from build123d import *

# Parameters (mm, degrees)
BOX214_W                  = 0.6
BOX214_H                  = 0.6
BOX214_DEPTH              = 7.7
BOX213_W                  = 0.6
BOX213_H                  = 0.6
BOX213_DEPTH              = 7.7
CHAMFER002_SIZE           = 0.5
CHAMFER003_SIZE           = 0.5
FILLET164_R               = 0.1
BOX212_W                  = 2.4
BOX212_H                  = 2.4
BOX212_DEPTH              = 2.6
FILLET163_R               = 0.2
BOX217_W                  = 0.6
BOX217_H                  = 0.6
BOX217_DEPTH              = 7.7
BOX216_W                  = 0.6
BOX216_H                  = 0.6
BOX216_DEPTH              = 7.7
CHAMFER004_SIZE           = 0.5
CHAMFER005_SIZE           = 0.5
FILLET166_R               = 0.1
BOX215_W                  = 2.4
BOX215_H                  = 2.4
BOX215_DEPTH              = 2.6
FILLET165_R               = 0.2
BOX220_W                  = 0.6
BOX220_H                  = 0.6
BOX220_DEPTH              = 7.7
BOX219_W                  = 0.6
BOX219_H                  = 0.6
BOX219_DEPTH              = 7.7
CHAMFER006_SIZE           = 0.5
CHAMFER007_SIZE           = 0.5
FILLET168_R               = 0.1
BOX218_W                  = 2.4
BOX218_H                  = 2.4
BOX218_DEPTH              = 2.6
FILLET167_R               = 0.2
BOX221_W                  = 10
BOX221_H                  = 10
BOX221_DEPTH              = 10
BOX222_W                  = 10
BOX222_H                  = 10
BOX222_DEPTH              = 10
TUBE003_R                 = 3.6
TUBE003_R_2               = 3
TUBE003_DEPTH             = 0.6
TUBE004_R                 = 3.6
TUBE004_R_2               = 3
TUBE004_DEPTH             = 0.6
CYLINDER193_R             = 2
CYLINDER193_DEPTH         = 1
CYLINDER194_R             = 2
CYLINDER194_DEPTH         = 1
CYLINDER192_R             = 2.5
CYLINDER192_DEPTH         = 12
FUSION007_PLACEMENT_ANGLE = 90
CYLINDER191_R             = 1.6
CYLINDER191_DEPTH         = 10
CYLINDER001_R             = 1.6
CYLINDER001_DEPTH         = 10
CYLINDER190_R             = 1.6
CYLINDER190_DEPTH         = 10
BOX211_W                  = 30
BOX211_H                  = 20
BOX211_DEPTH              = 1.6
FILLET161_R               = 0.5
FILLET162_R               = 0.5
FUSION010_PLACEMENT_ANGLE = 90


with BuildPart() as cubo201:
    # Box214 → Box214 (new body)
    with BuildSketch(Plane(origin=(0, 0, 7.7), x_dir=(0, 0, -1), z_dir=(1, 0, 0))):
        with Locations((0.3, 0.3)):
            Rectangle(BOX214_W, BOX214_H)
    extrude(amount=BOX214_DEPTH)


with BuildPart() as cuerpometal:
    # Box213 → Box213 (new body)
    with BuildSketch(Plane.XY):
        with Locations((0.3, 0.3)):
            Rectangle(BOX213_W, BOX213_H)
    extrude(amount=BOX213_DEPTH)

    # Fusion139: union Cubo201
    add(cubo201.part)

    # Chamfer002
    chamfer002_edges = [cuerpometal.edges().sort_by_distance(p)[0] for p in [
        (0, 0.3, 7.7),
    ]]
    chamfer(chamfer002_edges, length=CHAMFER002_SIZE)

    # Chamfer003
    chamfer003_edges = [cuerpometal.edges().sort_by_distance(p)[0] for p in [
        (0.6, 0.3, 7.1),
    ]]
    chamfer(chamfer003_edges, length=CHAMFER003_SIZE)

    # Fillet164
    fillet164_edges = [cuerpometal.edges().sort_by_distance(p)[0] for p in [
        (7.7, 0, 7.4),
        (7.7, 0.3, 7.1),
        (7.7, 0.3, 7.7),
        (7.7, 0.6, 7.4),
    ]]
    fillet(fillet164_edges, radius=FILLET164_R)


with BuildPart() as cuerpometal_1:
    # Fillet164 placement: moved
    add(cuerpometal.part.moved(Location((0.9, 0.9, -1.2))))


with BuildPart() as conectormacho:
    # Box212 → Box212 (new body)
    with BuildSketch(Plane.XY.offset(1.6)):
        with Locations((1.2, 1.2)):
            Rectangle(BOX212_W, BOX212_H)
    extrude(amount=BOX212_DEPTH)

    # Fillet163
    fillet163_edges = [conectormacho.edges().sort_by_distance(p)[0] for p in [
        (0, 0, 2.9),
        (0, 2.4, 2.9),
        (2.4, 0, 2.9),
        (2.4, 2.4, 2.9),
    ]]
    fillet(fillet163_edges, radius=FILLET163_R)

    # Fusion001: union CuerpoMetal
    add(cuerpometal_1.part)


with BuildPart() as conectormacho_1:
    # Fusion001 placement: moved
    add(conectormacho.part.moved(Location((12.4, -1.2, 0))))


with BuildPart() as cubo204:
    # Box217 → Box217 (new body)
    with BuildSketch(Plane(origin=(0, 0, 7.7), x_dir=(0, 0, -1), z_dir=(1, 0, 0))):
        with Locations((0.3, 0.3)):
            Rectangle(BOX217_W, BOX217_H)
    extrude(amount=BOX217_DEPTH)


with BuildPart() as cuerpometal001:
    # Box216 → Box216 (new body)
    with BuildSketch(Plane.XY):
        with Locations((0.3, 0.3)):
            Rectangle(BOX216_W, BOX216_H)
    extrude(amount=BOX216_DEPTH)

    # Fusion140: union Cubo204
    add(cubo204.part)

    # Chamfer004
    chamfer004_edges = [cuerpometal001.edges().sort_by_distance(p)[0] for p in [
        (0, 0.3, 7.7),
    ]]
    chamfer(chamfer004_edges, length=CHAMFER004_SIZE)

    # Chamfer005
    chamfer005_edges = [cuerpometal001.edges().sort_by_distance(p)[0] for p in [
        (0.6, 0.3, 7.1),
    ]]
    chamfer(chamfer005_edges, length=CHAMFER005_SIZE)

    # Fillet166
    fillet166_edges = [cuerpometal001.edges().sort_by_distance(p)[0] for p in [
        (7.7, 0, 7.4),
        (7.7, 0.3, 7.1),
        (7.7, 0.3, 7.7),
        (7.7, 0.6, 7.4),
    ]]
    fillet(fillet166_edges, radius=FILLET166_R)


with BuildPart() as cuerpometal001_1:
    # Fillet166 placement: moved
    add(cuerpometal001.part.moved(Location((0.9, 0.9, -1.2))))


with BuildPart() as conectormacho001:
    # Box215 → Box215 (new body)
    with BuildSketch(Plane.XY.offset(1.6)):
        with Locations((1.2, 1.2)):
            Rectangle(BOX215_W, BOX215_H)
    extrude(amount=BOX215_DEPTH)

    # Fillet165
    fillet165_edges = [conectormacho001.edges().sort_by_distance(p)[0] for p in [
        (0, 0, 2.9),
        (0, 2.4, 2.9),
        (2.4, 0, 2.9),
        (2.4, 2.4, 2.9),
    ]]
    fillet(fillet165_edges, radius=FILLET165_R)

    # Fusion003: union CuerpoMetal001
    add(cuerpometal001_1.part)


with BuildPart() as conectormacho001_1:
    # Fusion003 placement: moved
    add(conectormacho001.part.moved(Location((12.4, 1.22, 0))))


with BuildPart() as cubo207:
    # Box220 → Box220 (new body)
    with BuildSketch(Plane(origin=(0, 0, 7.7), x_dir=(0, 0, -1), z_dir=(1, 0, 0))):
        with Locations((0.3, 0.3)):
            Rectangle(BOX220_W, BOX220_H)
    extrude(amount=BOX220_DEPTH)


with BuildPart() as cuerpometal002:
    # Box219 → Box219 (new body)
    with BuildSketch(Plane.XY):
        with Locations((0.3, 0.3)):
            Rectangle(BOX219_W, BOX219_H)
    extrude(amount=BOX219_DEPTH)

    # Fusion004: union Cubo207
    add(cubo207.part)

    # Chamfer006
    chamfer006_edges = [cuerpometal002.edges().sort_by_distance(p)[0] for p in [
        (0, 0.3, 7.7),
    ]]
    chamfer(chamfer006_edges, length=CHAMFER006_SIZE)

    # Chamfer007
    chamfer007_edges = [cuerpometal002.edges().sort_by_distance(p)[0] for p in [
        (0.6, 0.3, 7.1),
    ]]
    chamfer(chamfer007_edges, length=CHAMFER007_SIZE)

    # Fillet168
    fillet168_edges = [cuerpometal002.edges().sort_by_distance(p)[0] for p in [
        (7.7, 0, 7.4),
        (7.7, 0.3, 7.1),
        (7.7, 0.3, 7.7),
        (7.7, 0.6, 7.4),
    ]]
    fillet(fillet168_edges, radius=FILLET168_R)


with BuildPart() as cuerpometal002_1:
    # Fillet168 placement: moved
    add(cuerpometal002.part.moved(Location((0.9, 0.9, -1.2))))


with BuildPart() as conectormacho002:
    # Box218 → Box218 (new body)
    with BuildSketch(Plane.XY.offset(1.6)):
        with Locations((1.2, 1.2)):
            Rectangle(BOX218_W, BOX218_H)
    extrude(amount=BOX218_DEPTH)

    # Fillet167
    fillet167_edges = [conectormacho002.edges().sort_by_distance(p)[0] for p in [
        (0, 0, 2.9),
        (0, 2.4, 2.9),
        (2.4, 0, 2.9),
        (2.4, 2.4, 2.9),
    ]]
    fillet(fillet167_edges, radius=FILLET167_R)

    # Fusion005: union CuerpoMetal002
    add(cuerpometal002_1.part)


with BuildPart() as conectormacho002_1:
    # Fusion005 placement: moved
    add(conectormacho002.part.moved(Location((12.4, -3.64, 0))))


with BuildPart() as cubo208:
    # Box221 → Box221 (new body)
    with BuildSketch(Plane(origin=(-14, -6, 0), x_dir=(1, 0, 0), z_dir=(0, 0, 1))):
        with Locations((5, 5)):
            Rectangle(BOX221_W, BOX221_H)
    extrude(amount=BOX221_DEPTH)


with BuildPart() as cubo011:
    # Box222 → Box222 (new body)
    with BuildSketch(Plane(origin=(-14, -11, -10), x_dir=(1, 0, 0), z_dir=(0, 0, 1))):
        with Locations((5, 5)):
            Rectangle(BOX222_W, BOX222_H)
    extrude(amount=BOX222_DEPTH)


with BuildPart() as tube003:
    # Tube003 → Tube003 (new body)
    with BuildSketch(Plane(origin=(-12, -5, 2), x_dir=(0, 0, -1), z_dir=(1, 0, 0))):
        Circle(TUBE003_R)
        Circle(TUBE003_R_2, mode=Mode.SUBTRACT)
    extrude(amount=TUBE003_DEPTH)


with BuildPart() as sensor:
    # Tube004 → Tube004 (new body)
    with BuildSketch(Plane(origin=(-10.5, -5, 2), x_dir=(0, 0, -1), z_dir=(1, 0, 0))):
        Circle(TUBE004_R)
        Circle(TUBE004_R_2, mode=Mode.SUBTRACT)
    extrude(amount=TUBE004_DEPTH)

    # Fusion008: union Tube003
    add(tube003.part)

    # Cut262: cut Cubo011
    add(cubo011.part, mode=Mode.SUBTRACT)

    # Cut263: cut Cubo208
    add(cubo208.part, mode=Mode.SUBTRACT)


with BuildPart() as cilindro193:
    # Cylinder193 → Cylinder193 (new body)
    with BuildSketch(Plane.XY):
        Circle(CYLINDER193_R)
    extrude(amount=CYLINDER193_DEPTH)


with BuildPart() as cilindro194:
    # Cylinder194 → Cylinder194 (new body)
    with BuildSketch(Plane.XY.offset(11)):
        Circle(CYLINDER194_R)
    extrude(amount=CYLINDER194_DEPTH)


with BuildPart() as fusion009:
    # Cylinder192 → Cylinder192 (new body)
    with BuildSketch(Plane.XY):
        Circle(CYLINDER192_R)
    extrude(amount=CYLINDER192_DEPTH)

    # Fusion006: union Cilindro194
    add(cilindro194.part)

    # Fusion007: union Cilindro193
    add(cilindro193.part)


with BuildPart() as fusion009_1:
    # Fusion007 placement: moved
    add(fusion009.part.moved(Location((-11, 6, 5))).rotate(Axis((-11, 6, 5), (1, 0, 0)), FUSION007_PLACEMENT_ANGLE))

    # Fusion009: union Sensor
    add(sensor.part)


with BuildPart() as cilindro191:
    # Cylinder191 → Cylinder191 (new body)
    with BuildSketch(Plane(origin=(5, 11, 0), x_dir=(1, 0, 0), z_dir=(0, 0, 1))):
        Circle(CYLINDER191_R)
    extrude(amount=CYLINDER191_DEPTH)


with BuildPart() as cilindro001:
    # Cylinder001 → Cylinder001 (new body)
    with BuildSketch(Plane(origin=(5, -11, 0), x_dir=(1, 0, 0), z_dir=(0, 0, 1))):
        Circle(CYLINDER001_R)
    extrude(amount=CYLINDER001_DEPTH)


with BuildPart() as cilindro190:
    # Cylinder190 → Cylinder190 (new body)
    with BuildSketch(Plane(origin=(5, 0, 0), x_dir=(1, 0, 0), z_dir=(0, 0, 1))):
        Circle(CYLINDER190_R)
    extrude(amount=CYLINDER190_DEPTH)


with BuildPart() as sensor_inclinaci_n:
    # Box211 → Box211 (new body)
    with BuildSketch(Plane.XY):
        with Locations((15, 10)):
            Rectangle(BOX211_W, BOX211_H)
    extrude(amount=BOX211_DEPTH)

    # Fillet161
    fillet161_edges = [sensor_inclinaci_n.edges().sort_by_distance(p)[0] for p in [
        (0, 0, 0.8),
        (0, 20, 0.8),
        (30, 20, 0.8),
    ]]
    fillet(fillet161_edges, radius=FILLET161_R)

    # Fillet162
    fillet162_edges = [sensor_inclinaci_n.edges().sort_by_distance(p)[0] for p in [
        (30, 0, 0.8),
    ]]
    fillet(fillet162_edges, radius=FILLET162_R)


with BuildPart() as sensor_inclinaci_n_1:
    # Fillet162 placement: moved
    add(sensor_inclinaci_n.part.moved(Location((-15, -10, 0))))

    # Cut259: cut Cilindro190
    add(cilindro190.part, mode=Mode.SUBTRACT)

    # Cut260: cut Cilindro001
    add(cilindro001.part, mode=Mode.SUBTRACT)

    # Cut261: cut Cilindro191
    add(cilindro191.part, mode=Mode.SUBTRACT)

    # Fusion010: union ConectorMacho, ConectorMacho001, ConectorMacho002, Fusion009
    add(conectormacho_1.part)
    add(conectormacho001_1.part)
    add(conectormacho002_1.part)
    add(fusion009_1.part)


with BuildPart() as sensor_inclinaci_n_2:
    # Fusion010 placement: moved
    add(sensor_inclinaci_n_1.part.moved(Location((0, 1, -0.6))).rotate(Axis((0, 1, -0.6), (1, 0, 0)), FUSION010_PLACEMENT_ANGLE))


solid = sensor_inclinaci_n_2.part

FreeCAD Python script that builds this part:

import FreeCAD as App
import Part
import Sketcher

V = App.Vector


def edges_at(feature, points):
    """Names of the edges that pass closest to the given points."""
    edges = feature.Shape.Edges
    near = lambda p: min(range(len(edges)), key=lambda i: edges[i].distToShape(Part.Vertex(*p))[0])
    return sorted({f"Edge{near(p) + 1}" for p in points})

doc = App.newDocument("Part")
body = doc.addObject("PartDesign::Body", "Body")

# Sketch on YZ plane
sketch1 = body.newObject("Sketcher::SketchObject", "Sketch")
sketch1.AttachmentSupport = (doc.getObject("YZ_Plane"), [""])
sketch1.MapMode = "FlatFace"
sketch1.addGeometry(Part.LineSegment(V(0.6, 7.7, 0), V(0, 7.7, 0)), False)
sketch1.addGeometry(Part.LineSegment(V(0, 7.7, 0), V(0, 7.1, 0)), False)
sketch1.addGeometry(Part.LineSegment(V(0, 7.1, 0), V(0.6, 7.1, 0)), False)
sketch1.addGeometry(Part.LineSegment(V(0.6, 7.1, 0), V(0.6, 7.7, 0)), False)
sketch1.addConstraint(Sketcher.Constraint("Coincident", 0, 2, 1, 1))
sketch1.addConstraint(Sketcher.Constraint("Coincident", 1, 2, 2, 1))
sketch1.addConstraint(Sketcher.Constraint("Coincident", 2, 2, 3, 1))
sketch1.addConstraint(Sketcher.Constraint("Coincident", 3, 2, 0, 1))
sketch1.addConstraint(Sketcher.Constraint("Horizontal", 0))
sketch1.addConstraint(Sketcher.Constraint("Vertical", 1))
sketch1.addConstraint(Sketcher.Constraint("Horizontal", 2))
sketch1.addConstraint(Sketcher.Constraint("Vertical", 3))
sketch1.addConstraint(Sketcher.Constraint("PointOnObject", 0, 2, -2))
sketch1.addConstraint(Sketcher.Constraint("Equal", 2, 1))
sketch1.addConstraint(Sketcher.Constraint("DistanceX", 0, 2, 0, 1, 0.6))
sketch1.addConstraint(Sketcher.Constraint("DistanceY", -1, 1, 0, 2, 7.7))
pad1 = body.newObject("PartDesign::Pad", "Pad")
pad1.Profile = sketch1
pad1.Length = 7.7
body2 = doc.addObject("PartDesign::Body", "Body001")

# Sketch on XY plane
sketch2 = body2.newObject("Sketcher::SketchObject", "Sketch001")
sketch2.AttachmentSupport = (doc.getObject("XY_Plane001"), [""])
sketch2.MapMode = "FlatFace"
sketch2.addGeometry(Part.LineSegment(V(0, 0.6, 0), V(0, 0, 0)), False)
sketch2.addGeometry(Part.LineSegment(V(0, 0, 0), V(0.6, 0, 0)), False)
sketch2.addGeometry(Part.LineSegment(V(0.6, 0, 0), V(0.6, 0.6, 0)), False)
sketch2.addGeometry(Part.LineSegment(V(0.6, 0.6, 0), V(0, 0.6, 0)), False)
sketch2.addConstraint(Sketcher.Constraint("Coincident", 0, 2, 1, 1))
sketch2.addConstraint(Sketcher.Constraint("Coincident", 1, 2, 2, 1))
sketch2.addConstraint(Sketcher.Constraint("Coincident", 2, 2, 3, 1))
sketch2.addConstraint(Sketcher.Constraint("Coincident", 3, 2, 0, 1))
sketch2.addConstraint(Sketcher.Constraint("Vertical", 0))
sketch2.addConstraint(Sketcher.Constraint("Horizontal", 1))
sketch2.addConstraint(Sketcher.Constraint("Vertical", 2))
sketch2.addConstraint(Sketcher.Constraint("Horizontal", 3))
sketch2.addConstraint(Sketcher.Constraint("Coincident", 0, 2, -1, 1))
sketch2.addConstraint(Sketcher.Constraint("Equal", 3, 0))
sketch2.addConstraint(Sketcher.Constraint("DistanceX", 1, 1, 1, 2, 0.6))
pad2 = body2.newObject("PartDesign::Pad", "Pad001")
pad2.Profile = sketch2
pad2.Length = 7.7
doc.recompute()

boolean = body2.newObject("PartDesign::Boolean", "Boolean")
boolean.Type = "Fuse"
boolean.addObjects([body])
doc.recompute()

chamfer = body2.newObject("PartDesign::Chamfer", "Chamfer")
chamfer.Base = (boolean, edges_at(boolean, [(0, 0.3, 7.7)]))
chamfer.Size = 0.5
doc.recompute()

chamfer2 = body2.newObject("PartDesign::Chamfer", "Chamfer001")
chamfer2.Base = (chamfer, edges_at(chamfer, [(0.6, 0.3, 7.1)]))
chamfer2.Size = 0.5
doc.recompute()

fillet = body2.newObject("PartDesign::Fillet", "Fillet")
fillet.Base = (chamfer2, edges_at(chamfer2, [
    (7.7, 0, 7.4),
    (7.7, 0.3, 7.1),
    (7.7, 0.3, 7.7),
    (7.7, 0.6, 7.4),
]))
fillet.Radius = 0.1
body3 = doc.addObject("PartDesign::Body", "Body002")
doc.recompute()

body2.Placement = App.Placement(V(0.9, 0.9, -1.2), App.Rotation(V(0, 0, 1), 0))
boolean2 = body3.newObject("PartDesign::Boolean", "Boolean001")
boolean2.Type = "Fuse"
boolean2.addObjects([body2])
body4 = doc.addObject("PartDesign::Body", "Body003")

# Sketch on XY plane
sketch3 = body4.newObject("Sketcher::SketchObject", "Sketch002")
sketch3.AttachmentSupport = (doc.getObject("XY_Plane003"), [""])
sketch3.MapMode = "FlatFace"
sketch3.AttachmentOffset = App.Placement(V(0, 0, 1.6), App.Rotation())
sketch3.addGeometry(Part.LineSegment(V(0, 2.4, 0), V(0, 0, 0)), False)
sketch3.addGeometry(Part.LineSegment(V(0, 0, 0), V(2.4, 0, 0)), False)
sketch3.addGeometry(Part.LineSegment(V(2.4, 0, 0), V(2.4, 2.4, 0)), False)
sketch3.addGeometry(Part.LineSegment(V(2.4, 2.4, 0), V(0, 2.4, 0)), False)
sketch3.addConstraint(Sketcher.Constraint("Coincident", 0, 2, 1, 1))
sketch3.addConstraint(Sketcher.Constraint("Coincident", 1, 2, 2, 1))
sketch3.addConstraint(Sketcher.Constraint("Coincident", 2, 2, 3, 1))
sketch3.addConstraint(Sketcher.Constraint("Coincident", 3, 2, 0, 1))
sketch3.addConstraint(Sketcher.Constraint("Vertical", 0))
sketch3.addConstraint(Sketcher.Constraint("Horizontal", 1))
sketch3.addConstraint(Sketcher.Constraint("Vertical", 2))
sketch3.addConstraint(Sketcher.Constraint("Horizontal", 3))
sketch3.addConstraint(Sketcher.Constraint("Coincident", 0, 2, -1, 1))
sketch3.addConstraint(Sketcher.Constraint("Equal", 3, 0))
sketch3.addConstraint(Sketcher.Constraint("DistanceX", 1, 1, 1, 2, 2.4))
pad3 = body4.newObject("PartDesign::Pad", "Pad002")
pad3.Profile = sketch3
pad3.Length = 2.6
doc.recompute()

fillet2 = body4.newObject("PartDesign::Fillet", "Fillet001")
fillet2.Base = (pad3, edges_at(pad3, [
    (0, 0, 2.9),
    (0, 2.4, 2.9),
    (2.4, 0, 2.9),
    (2.4, 2.4, 2.9),
]))
fillet2.Radius = 0.2
doc.recompute()

boolean3 = body4.newObject("PartDesign::Boolean", "Boolean002")
boolean3.Type = "Fuse"
boolean3.addObjects([body3])
body5 = doc.addObject("PartDesign::Body", "Body004")
doc.recompute()

body4.Placement = App.Placement(V(12.4, -1.2, 0), App.Rotation(V(0, 0, 1), 0))
boolean4 = body5.newObject("PartDesign::Boolean", "Boolean003")
boolean4.Type = "Fuse"
boolean4.addObjects([body4])
body6 = doc.addObject("PartDesign::Body", "Body005")

# Sketch on YZ plane
sketch4 = body6.newObject("Sketcher::SketchObject", "Sketch003")
sketch4.AttachmentSupport = (doc.getObject("YZ_Plane005"), [""])
sketch4.MapMode = "FlatFace"
sketch4.addGeometry(Part.LineSegment(V(0.6, 7.7, 0), V(0, 7.7, 0)), False)
sketch4.addGeometry(Part.LineSegment(V(0, 7.7, 0), V(0, 7.1, 0)), False)
sketch4.addGeometry(Part.LineSegment(V(0, 7.1, 0), V(0.6, 7.1, 0)), False)
sketch4.addGeometry(Part.LineSegment(V(0.6, 7.1, 0), V(0.6, 7.7, 0)), False)
sketch4.addConstraint(Sketcher.Constraint("Coincident", 0, 2, 1, 1))
sketch4.addConstraint(Sketcher.Constraint("Coincident", 1, 2, 2, 1))
sketch4.addConstraint(Sketcher.Constraint("Coincident", 2, 2, 3, 1))
sketch4.addConstraint(Sketcher.Constraint("Coincident", 3, 2, 0, 1))
sketch4.addConstraint(Sketcher.Constraint("Horizontal", 0))
sketch4.addConstraint(Sketcher.Constraint("Vertical", 1))
sketch4.addConstraint(Sketcher.Constraint("Horizontal", 2))
sketch4.addConstraint(Sketcher.Constraint("Vertical", 3))
sketch4.addConstraint(Sketcher.Constraint("PointOnObject", 0, 2, -2))
sketch4.addConstraint(Sketcher.Constraint("Equal", 2, 1))
sketch4.addConstraint(Sketcher.Constraint("DistanceX", 0, 2, 0, 1, 0.6))
sketch4.addConstraint(Sketcher.Constraint("DistanceY", -1, 1, 0, 2, 7.7))
pad4 = body6.newObject("PartDesign::Pad", "Pad003")
pad4.Profile = sketch4
pad4.Length = 7.7
body7 = doc.addObject("PartDesign::Body", "Body006")

# Sketch on XY plane
sketch5 = body7.newObject("Sketcher::SketchObject", "Sketch004")
sketch5.AttachmentSupport = (doc.getObject("XY_Plane006"), [""])
sketch5.MapMode = "FlatFace"
sketch5.addGeometry(Part.LineSegment(V(0, 0.6, 0), V(0, 0, 0)), False)
sketch5.addGeometry(Part.LineSegment(V(0, 0, 0), V(0.6, 0, 0)), False)
sketch5.addGeometry(Part.LineSegment(V(0.6, 0, 0), V(0.6, 0.6, 0)), False)
sketch5.addGeometry(Part.LineSegment(V(0.6, 0.6, 0), V(0, 0.6, 0)), False)
sketch5.addConstraint(Sketcher.Constraint("Coincident", 0, 2, 1, 1))
sketch5.addConstraint(Sketcher.Constraint("Coincident", 1, 2, 2, 1))
sketch5.addConstraint(Sketcher.Constraint("Coincident", 2, 2, 3, 1))
sketch5.addConstraint(Sketcher.Constraint("Coincident", 3, 2, 0, 1))
sketch5.addConstraint(Sketcher.Constraint("Vertical", 0))
sketch5.addConstraint(Sketcher.Constraint("Horizontal", 1))
sketch5.addConstraint(Sketcher.Constraint("Vertical", 2))
sketch5.addConstraint(Sketcher.Constraint("Horizontal", 3))
sketch5.addConstraint(Sketcher.Constraint("Coincident", 0, 2, -1, 1))
sketch5.addConstraint(Sketcher.Constraint("Equal", 3, 0))
sketch5.addConstraint(Sketcher.Constraint("DistanceX", 1, 1, 1, 2, 0.6))
pad5 = body7.newObject("PartDesign::Pad", "Pad004")
pad5.Profile = sketch5
pad5.Length = 7.7
doc.recompute()

boolean5 = body7.newObject("PartDesign::Boolean", "Boolean004")
boolean5.Type = "Fuse"
boolean5.addObjects([body6])
doc.recompute()

chamfer3 = body7.newObject("PartDesign::Chamfer", "Chamfer002")
chamfer3.Base = (boolean5, edges_at(boolean5, [(0, 0.3, 7.7)]))
chamfer3.Size = 0.5
doc.recompute()

chamfer4 = body7.newObject("PartDesign::Chamfer", "Chamfer003")
chamfer4.Base = (chamfer3, edges_at(chamfer3, [(0.6, 0.3, 7.1)]))
chamfer4.Size = 0.5
doc.recompute()

fillet3 = body7.newObject("PartDesign::Fillet", "Fillet002")
fillet3.Base = (chamfer4, edges_at(chamfer4, [
    (7.7, 0, 7.4),
    (7.7, 0.3, 7.1),
    (7.7, 0.3, 7.7),
    (7.7, 0.6, 7.4),
]))
fillet3.Radius = 0.1
body8 = doc.addObject("PartDesign::Body", "Body007")
doc.recompute()

body7.Placement = App.Placement(V(0.9, 0.9, -1.2), App.Rotation(V(0, 0, 1), 0))
boolean6 = body8.newObject("PartDesign::Boolean", "Boolean005")
boolean6.Type = "Fuse"
boolean6.addObjects([body7])
body9 = doc.addObject("PartDesign::Body", "Body008")

# Sketch on XY plane
sketch6 = body9.newObject("Sketcher::SketchObject", "Sketch005")
sketch6.AttachmentSupport = (doc.getObject("XY_Plane008"), [""])
sketch6.MapMode = "FlatFace"
sketch6.AttachmentOffset = App.Placement(V(0, 0, 1.6), App.Rotation())
sketch6.addGeometry(Part.LineSegment(V(0, 2.4, 0), V(0, 0, 0)), False)
sketch6.addGeometry(Part.LineSegment(V(0, 0, 0), V(2.4, 0, 0)), False)
sketch6.addGeometry(Part.LineSegment(V(2.4, 0, 0), V(2.4, 2.4, 0)), False)
sketch6.addGeometry(Part.LineSegment(V(2.4, 2.4, 0), V(0, 2.4, 0)), False)
sketch6.addConstraint(Sketcher.Constraint("Coincident", 0, 2, 1, 1))
sketch6.addConstraint(Sketcher.Constraint("Coincident", 1, 2, 2, 1))
sketch6.addConstraint(Sketcher.Constraint("Coincident", 2, 2, 3, 1))
sketch6.addConstraint(Sketcher.Constraint("Coincident", 3, 2, 0, 1))
sketch6.addConstraint(Sketcher.Constraint("Vertical", 0))
sketch6.addConstraint(Sketcher.Constraint("Horizontal", 1))
sketch6.addConstraint(Sketcher.Constraint("Vertical", 2))
sketch6.addConstraint(Sketcher.Constraint("Horizontal", 3))
sketch6.addConstraint(Sketcher.Constraint("Coincident", 0, 2, -1, 1))
sketch6.addConstraint(Sketcher.Constraint("Equal", 3, 0))
sketch6.addConstraint(Sketcher.Constraint("DistanceX", 1, 1, 1, 2, 2.4))
pad6 = body9.newObject("PartDesign::Pad", "Pad005")
pad6.Profile = sketch6
pad6.Length = 2.6
doc.recompute()

fillet4 = body9.newObject("PartDesign::Fillet", "Fillet003")
fillet4.Base = (pad6, edges_at(pad6, [
    (0, 0, 2.9),
    (0, 2.4, 2.9),
    (2.4, 0, 2.9),
    (2.4, 2.4, 2.9),
]))
fillet4.Radius = 0.2
doc.recompute()

boolean7 = body9.newObject("PartDesign::Boolean", "Boolean006")
boolean7.Type = "Fuse"
boolean7.addObjects([body8])
body10 = doc.addObject("PartDesign::Body", "Body009")
doc.recompute()

body9.Placement = App.Placement(V(12.4, 1.22, 0), App.Rotation(V(0, 0, 1), 0))
boolean8 = body10.newObject("PartDesign::Boolean", "Boolean007")
boolean8.Type = "Fuse"
boolean8.addObjects([body9])
body11 = doc.addObject("PartDesign::Body", "Body010")

# Sketch on YZ plane
sketch7 = body11.newObject("Sketcher::SketchObject", "Sketch006")
sketch7.AttachmentSupport = (doc.getObject("YZ_Plane010"), [""])
sketch7.MapMode = "FlatFace"
sketch7.addGeometry(Part.LineSegment(V(0.6, 7.7, 0), V(0, 7.7, 0)), False)
sketch7.addGeometry(Part.LineSegment(V(0, 7.7, 0), V(0, 7.1, 0)), False)
sketch7.addGeometry(Part.LineSegment(V(0, 7.1, 0), V(0.6, 7.1, 0)), False)
sketch7.addGeometry(Part.LineSegment(V(0.6, 7.1, 0), V(0.6, 7.7, 0)), False)
sketch7.addConstraint(Sketcher.Constraint("Coincident", 0, 2, 1, 1))
sketch7.addConstraint(Sketcher.Constraint("Coincident", 1, 2, 2, 1))
sketch7.addConstraint(Sketcher.Constraint("Coincident", 2, 2, 3, 1))
sketch7.addConstraint(Sketcher.Constraint("Coincident", 3, 2, 0, 1))
sketch7.addConstraint(Sketcher.Constraint("Horizontal", 0))
sketch7.addConstraint(Sketcher.Constraint("Vertical", 1))
sketch7.addConstraint(Sketcher.Constraint("Horizontal", 2))
sketch7.addConstraint(Sketcher.Constraint("Vertical", 3))
sketch7.addConstraint(Sketcher.Constraint("PointOnObject", 0, 2, -2))
sketch7.addConstraint(Sketcher.Constraint("Equal", 2, 1))
sketch7.addConstraint(Sketcher.Constraint("DistanceX", 0, 2, 0, 1, 0.6))
sketch7.addConstraint(Sketcher.Constraint("DistanceY", -1, 1, 0, 2, 7.7))
pad7 = body11.newObject("PartDesign::Pad", "Pad006")
pad7.Profile = sketch7
pad7.Length = 7.7
body12 = doc.addObject("PartDesign::Body", "Body011")

# Sketch on XY plane
sketch8 = body12.newObject("Sketcher::SketchObject", "Sketch007")
sketch8.AttachmentSupport = (doc.getObject("XY_Plane011"), [""])
sketch8.MapMode = "FlatFace"
sketch8.addGeometry(Part.LineSegment(V(0, 0.6, 0), V(0, 0, 0)), False)
sketch8.addGeometry(Part.LineSegment(V(0, 0, 0), V(0.6, 0, 0)), False)
sketch8.addGeometry(Part.LineSegment(V(0.6, 0, 0), V(0.6, 0.6, 0)), False)
sketch8.addGeometry(Part.LineSegment(V(0.6, 0.6, 0), V(0, 0.6, 0)), False)
sketch8.addConstraint(Sketcher.Constraint("Coincident", 0, 2, 1, 1))
sketch8.addConstraint(Sketcher.Constraint("Coincident", 1, 2, 2, 1))
sketch8.addConstraint(Sketcher.Constraint("Coincident", 2, 2, 3, 1))
sketch8.addConstraint(Sketcher.Constraint("Coincident", 3, 2, 0, 1))
sketch8.addConstraint(Sketcher.Constraint("Vertical", 0))
sketch8.addConstraint(Sketcher.Constraint("Horizontal", 1))
sketch8.addConstraint(Sketcher.Constraint("Vertical", 2))
sketch8.addConstraint(Sketcher.Constraint("Horizontal", 3))
sketch8.addConstraint(Sketcher.Constraint("Coincident", 0, 2, -1, 1))
sketch8.addConstraint(Sketcher.Constraint("Equal", 3, 0))
sketch8.addConstraint(Sketcher.Constraint("DistanceX", 1, 1, 1, 2, 0.6))
pad8 = body12.newObject("PartDesign::Pad", "Pad007")
pad8.Profile = sketch8
pad8.Length = 7.7
doc.recompute()

boolean9 = body12.newObject("PartDesign::Boolean", "Boolean008")
boolean9.Type = "Fuse"
boolean9.addObjects([body11])
doc.recompute()

chamfer5 = body12.newObject("PartDesign::Chamfer", "Chamfer004")
chamfer5.Base = (boolean9, edges_at(boolean9, [(0, 0.3, 7.7)]))
chamfer5.Size = 0.5
doc.recompute()

chamfer6 = body12.newObject("PartDesign::Chamfer", "Chamfer005")
chamfer6.Base = (chamfer5, edges_at(chamfer5, [(0.6, 0.3, 7.1)]))
chamfer6.Size = 0.5
doc.recompute()

fillet5 = body12.newObject("PartDesign::Fillet", "Fillet004")
fillet5.Base = (chamfer6, edges_at(chamfer6, [
    (7.7, 0, 7.4),
    (7.7, 0.3, 7.1),
    (7.7, 0.3, 7.7),
    (7.7, 0.6, 7.4),
]))
fillet5.Radius = 0.1
body13 = doc.addObject("PartDesign::Body", "Body012")
doc.recompute()

body12.Placement = App.Placement(V(0.9, 0.9, -1.2), App.Rotation(V(0, 0, 1), 0))
boolean10 = body13.newObject("PartDesign::Boolean", "Boolean009")
boolean10.Type = "Fuse"
boolean10.addObjects([body12])
body14 = doc.addObject("PartDesign::Body", "Body013")

# Sketch on XY plane
sketch9 = body14.newObject("Sketcher::SketchObject", "Sketch008")
sketch9.AttachmentSupport = (doc.getObject("XY_Plane013"), [""])
sketch9.MapMode = "FlatFace"
sketch9.AttachmentOffset = App.Placement(V(0, 0, 1.6), App.Rotation())
sketch9.addGeometry(Part.LineSegment(V(0, 2.4, 0), V(0, 0, 0)), False)
sketch9.addGeometry(Part.LineSegment(V(0, 0, 0), V(2.4, 0, 0)), False)
sketch9.addGeometry(Part.LineSegment(V(2.4, 0, 0), V(2.4, 2.4, 0)), False)
sketch9.addGeometry(Part.LineSegment(V(2.4, 2.4, 0), V(0, 2.4, 0)), False)
sketch9.addConstraint(Sketcher.Constraint("Coincident", 0, 2, 1, 1))
sketch9.addConstraint(Sketcher.Constraint("Coincident", 1, 2, 2, 1))
sketch9.addConstraint(Sketcher.Constraint("Coincident", 2, 2, 3, 1))
sketch9.addConstraint(Sketcher.Constraint("Coincident", 3, 2, 0, 1))
sketch9.addConstraint(Sketcher.Constraint("Vertical", 0))
sketch9.addConstraint(Sketcher.Constraint("Horizontal", 1))
sketch9.addConstraint(Sketcher.Constraint("Vertical", 2))
sketch9.addConstraint(Sketcher.Constraint("Horizontal", 3))
sketch9.addConstraint(Sketcher.Constraint("Coincident", 0, 2, -1, 1))
sketch9.addConstraint(Sketcher.Constraint("Equal", 3, 0))
sketch9.addConstraint(Sketcher.Constraint("DistanceX", 1, 1, 1, 2, 2.4))
pad9 = body14.newObject("PartDesign::Pad", "Pad008")
pad9.Profile = sketch9
pad9.Length = 2.6
doc.recompute()

fillet6 = body14.newObject("PartDesign::Fillet", "Fillet005")
fillet6.Base = (pad9, edges_at(pad9, [
    (0, 0, 2.9),
    (0, 2.4, 2.9),
    (2.4, 0, 2.9),
    (2.4, 2.4, 2.9),
]))
fillet6.Radius = 0.2
doc.recompute()

boolean11 = body14.newObject("PartDesign::Boolean", "Boolean010")
boolean11.Type = "Fuse"
boolean11.addObjects([body13])
body15 = doc.addObject("PartDesign::Body", "Body014")
doc.recompute()

body14.Placement = App.Placement(V(12.4, -3.64, 0), App.Rotation(V(0, 0, 1), 0))
boolean12 = body15.newObject("PartDesign::Boolean", "Boolean011")
boolean12.Type = "Fuse"
boolean12.addObjects([body14])
body16 = doc.addObject("PartDesign::Body", "Body015")

# Sketch on XY plane
sketch10 = body16.newObject("Sketcher::SketchObject", "Sketch009")
sketch10.AttachmentSupport = (doc.getObject("XY_Plane015"), [""])
sketch10.MapMode = "FlatFace"
sketch10.addGeometry(Part.LineSegment(V(-14, 4, 0), V(-14, -6, 0)), False)
sketch10.addGeometry(Part.LineSegment(V(-14, -6, 0), V(-4, -6, 0)), False)
sketch10.addGeometry(Part.LineSegment(V(-4, -6, 0), V(-4, 4, 0)), False)
sketch10.addGeometry(Part.LineSegment(V(-4, 4, 0), V(-14, 4, 0)), False)
sketch10.addConstraint(Sketcher.Constraint("Coincident", 0, 2, 1, 1))
sketch10.addConstraint(Sketcher.Constraint("Coincident", 1, 2, 2, 1))
sketch10.addConstraint(Sketcher.Constraint("Coincident", 2, 2, 3, 1))
sketch10.addConstraint(Sketcher.Constraint("Coincident", 3, 2, 0, 1))
sketch10.addConstraint(Sketcher.Constraint("Vertical", 0))
sketch10.addConstraint(Sketcher.Constraint("Horizontal", 1))
sketch10.addConstraint(Sketcher.Constraint("Vertical", 2))
sketch10.addConstraint(Sketcher.Constraint("Horizontal", 3))
sketch10.addConstraint(Sketcher.Constraint("Equal", 3, 0))
sketch10.addConstraint(Sketcher.Constraint("DistanceX", 1, 1, 1, 2, 10.0))
sketch10.addConstraint(Sketcher.Constraint("DistanceX", 0, 2, -1, 1, 14.0))
sketch10.addConstraint(Sketcher.Constraint("DistanceY", 0, 2, -1, 1, 6.0))
pad10 = body16.newObject("PartDesign::Pad", "Pad009")
pad10.Profile = sketch10
pad10.Length = 10
body17 = doc.addObject("PartDesign::Body", "Body016")

# Sketch on XY plane
sketch11 = body17.newObject("Sketcher::SketchObject", "Sketch010")
sketch11.AttachmentSupport = (doc.getObject("XY_Plane016"), [""])
sketch11.MapMode = "FlatFace"
sketch11.AttachmentOffset = App.Placement(V(0, 0, -10), App.Rotation())
sketch11.addGeometry(Part.LineSegment(V(-14, -1, 0), V(-14, -11, 0)), False)
sketch11.addGeometry(Part.LineSegment(V(-14, -11, 0), V(-4, -11, 0)), False)
sketch11.addGeometry(Part.LineSegment(V(-4, -11, 0), V(-4, -1, 0)), False)
sketch11.addGeometry(Part.LineSegment(V(-4, -1, 0), V(-14, -1, 0)), False)
sketch11.addConstraint(Sketcher.Constraint("Coincident", 0, 2, 1, 1))
sketch11.addConstraint(Sketcher.Constraint("Coincident", 1, 2, 2, 1))
sketch11.addConstraint(Sketcher.Constraint("Coincident", 2, 2, 3, 1))
sketch11.addConstraint(Sketcher.Constraint("Coincident", 3, 2, 0, 1))
sketch11.addConstraint(Sketcher.Constraint("Vertical", 0))
sketch11.addConstraint(Sketcher.Constraint("Horizontal", 1))
sketch11.addConstraint(Sketcher.Constraint("Vertical", 2))
sketch11.addConstraint(Sketcher.Constraint("Horizontal", 3))
sketch11.addConstraint(Sketcher.Constraint("Equal", 3, 0))
sketch11.addConstraint(Sketcher.Constraint("DistanceX", 1, 1, 1, 2, 10.0))
sketch11.addConstraint(Sketcher.Constraint("DistanceX", 0, 2, -1, 1, 14.0))
sketch11.addConstraint(Sketcher.Constraint("DistanceY", 0, 2, -1, 1, 11.0))
pad11 = body17.newObject("PartDesign::Pad", "Pad010")
pad11.Profile = sketch11
pad11.Length = 10
body18 = doc.addObject("PartDesign::Body", "Body017")

# Sketch on YZ plane
sketch12 = body18.newObject("Sketcher::SketchObject", "Sketch011")
sketch12.AttachmentSupport = (doc.getObject("YZ_Plane017"), [""])
sketch12.MapMode = "FlatFace"
sketch12.AttachmentOffset = App.Placement(V(0, 0, -12), App.Rotation())
sketch12.addGeometry(Part.Circle(V(-5, 2, 0), V(0, 0, 1), 3.6), False)
sketch12.addGeometry(Part.Circle(V(-5, 2, 0), V(0, 0, 1), 3), False)
sketch12.addConstraint(Sketcher.Constraint("Coincident", 1, 3, 0, 3))
sketch12.addConstraint(Sketcher.Constraint("Diameter", 1, 6.0))
sketch12.addConstraint(Sketcher.Constraint("Diameter", 0, 7.2))
sketch12.addConstraint(Sketcher.Constraint("DistanceX", 0, 3, -1, 1, 5.0))
sketch12.addConstraint(Sketcher.Constraint("DistanceY", -1, 1, 0, 3, 2.0))
pad12 = body18.newObject("PartDesign::Pad", "Pad011")
pad12.Profile = sketch12
pad12.Length = 0.6
body19 = doc.addObject("PartDesign::Body", "Body018")
body19.AllowCompound = True

# Sketch on YZ plane
sketch13 = body19.newObject("Sketcher::SketchObject", "Sketch012")
sketch13.AttachmentSupport = (doc.getObject("YZ_Plane018"), [""])
sketch13.MapMode = "FlatFace"
sketch13.AttachmentOffset = App.Placement(V(0, 0, -10.5), App.Rotation())
sketch13.addGeometry(Part.Circle(V(-5, 2, 0), V(0, 0, 1), 3.6), False)
sketch13.addGeometry(Part.Circle(V(-5, 2, 0), V(0, 0, 1), 3), False)
sketch13.addConstraint(Sketcher.Constraint("Coincident", 1, 3, 0, 3))
sketch13.addConstraint(Sketcher.Constraint("Diameter", 1, 6.0))
sketch13.addConstraint(Sketcher.Constraint("Diameter", 0, 7.2))
sketch13.addConstraint(Sketcher.Constraint("DistanceX", 0, 3, -1, 1, 5.0))
sketch13.addConstraint(Sketcher.Constraint("DistanceY", -1, 1, 0, 3, 2.0))
pad13 = body19.newObject("PartDesign::Pad", "Pad012")
pad13.Profile = sketch13
pad13.Length = 0.6
doc.recompute()

boolean13 = body19.newObject("PartDesign::Boolean", "Boolean012")
boolean13.Type = "Fuse"
boolean13.addObjects([body18])
doc.recompute()

boolean14 = body19.newObject("PartDesign::Boolean", "Boolean013")
boolean14.Type = "Cut"
boolean14.addObjects([body17])
doc.recompute()

boolean15 = body19.newObject("PartDesign::Boolean", "Boolean014")
boolean15.Type = "Cut"
boolean15.addObjects([body16])
body20 = doc.addObject("PartDesign::Body", "Body019")

# Sketch on XY plane
sketch14 = body20.newObject("Sketcher::SketchObject", "Sketch013")
sketch14.AttachmentSupport = (doc.getObject("XY_Plane019"), [""])
sketch14.MapMode = "FlatFace"
sketch14.addGeometry(Part.Circle(V(0, 0, 0), V(0, 0, 1), 2), False)
sketch14.addConstraint(Sketcher.Constraint("Coincident", 0, 3, -1, 1))
sketch14.addConstraint(Sketcher.Constraint("Diameter", 0, 4.0))
pad14 = body20.newObject("PartDesign::Pad", "Pad013")
pad14.Profile = sketch14
pad14.Length = 1
body21 = doc.addObject("PartDesign::Body", "Body020")

# Sketch on XY plane
sketch15 = body21.newObject("Sketcher::SketchObject", "Sketch014")
sketch15.AttachmentSupport = (doc.getObject("XY_Plane020"), [""])
sketch15.MapMode = "FlatFace"
sketch15.AttachmentOffset = App.Placement(V(0, 0, 11), App.Rotation())
sketch15.addGeometry(Part.Circle(V(0, 0, 0), V(0, 0, 1), 2), False)
sketch15.addConstraint(Sketcher.Constraint("Coincident", 0, 3, -1, 1))
sketch15.addConstraint(Sketcher.Constraint("Diameter", 0, 4.0))
pad15 = body21.newObject("PartDesign::Pad", "Pad014")
pad15.Profile = sketch15
pad15.Length = 1
body22 = doc.addObject("PartDesign::Body", "Body021")

# Sketch on XY plane
sketch16 = body22.newObject("Sketcher::SketchObject", "Sketch015")
sketch16.AttachmentSupport = (doc.getObject("XY_Plane021"), [""])
sketch16.MapMode = "FlatFace"
sketch16.addGeometry(Part.Circle(V(0, 0, 0), V(0, 0, 1), 2.5), False)
sketch16.addConstraint(Sketcher.Constraint("Coincident", 0, 3, -1, 1))
sketch16.addConstraint(Sketcher.Constraint("Diameter", 0, 5.0))
pad16 = body22.newObject("PartDesign::Pad", "Pad015")
pad16.Profile = sketch16
pad16.Length = 12
doc.recompute()

boolean16 = body22.newObject("PartDesign::Boolean", "Boolean015")
boolean16.Type = "Fuse"
boolean16.addObjects([body21])
doc.recompute()

boolean17 = body22.newObject("PartDesign::Boolean", "Boolean016")
boolean17.Type = "Fuse"
boolean17.addObjects([body20])
body23 = doc.addObject("PartDesign::Body", "Body022")
doc.recompute()

body22.Placement = App.Placement(V(-11, 6, 5), App.Rotation(V(1, 0, 0), 90))
boolean18 = body23.newObject("PartDesign::Boolean", "Boolean017")
boolean18.Type = "Fuse"
boolean18.addObjects([body22])
doc.recompute()

boolean19 = body23.newObject("PartDesign::Boolean", "Boolean018")
boolean19.Type = "Fuse"
boolean19.addObjects([body19])
body24 = doc.addObject("PartDesign::Body", "Body023")

# Sketch on XY plane
sketch17 = body24.newObject("Sketcher::SketchObject", "Sketch016")
sketch17.AttachmentSupport = (doc.getObject("XY_Plane023"), [""])
sketch17.MapMode = "FlatFace"
sketch17.addGeometry(Part.Circle(V(5, 11, 0), V(0, 0, 1), 1.6), False)
sketch17.addConstraint(Sketcher.Constraint("Diameter", 0, 3.2))
sketch17.addConstraint(Sketcher.Constraint("DistanceX", -1, 1, 0, 3, 5.0))
sketch17.addConstraint(Sketcher.Constraint("DistanceY", -1, 1, 0, 3, 11.0))
pad17 = body24.newObject("PartDesign::Pad", "Pad016")
pad17.Profile = sketch17
pad17.Length = 10
body25 = doc.addObject("PartDesign::Body", "Body024")

# Sketch on XY plane
sketch18 = body25.newObject("Sketcher::SketchObject", "Sketch017")
sketch18.AttachmentSupport = (doc.getObject("XY_Plane024"), [""])
sketch18.MapMode = "FlatFace"
sketch18.addGeometry(Part.Circle(V(5, -11, 0), V(0, 0, 1), 1.6), False)
sketch18.addConstraint(Sketcher.Constraint("Diameter", 0, 3.2))
sketch18.addConstraint(Sketcher.Constraint("DistanceX", -1, 1, 0, 3, 5.0))
sketch18.addConstraint(Sketcher.Constraint("DistanceY", 0, 3, -1, 1, 11.0))
pad18 = body25.newObject("PartDesign::Pad", "Pad017")
pad18.Profile = sketch18
pad18.Length = 10
body26 = doc.addObject("PartDesign::Body", "Body025")

# Sketch on XY plane
sketch19 = body26.newObject("Sketcher::SketchObject", "Sketch018")
sketch19.AttachmentSupport = (doc.getObject("XY_Plane025"), [""])
sketch19.MapMode = "FlatFace"
sketch19.addGeometry(Part.Circle(V(5, 0, 0), V(0, 0, 1), 1.6), False)
sketch19.addConstraint(Sketcher.Constraint("PointOnObject", 0, 3, -1))
sketch19.addConstraint(Sketcher.Constraint("Diameter", 0, 3.2))
sketch19.addConstraint(Sketcher.Constraint("DistanceX", -1, 1, 0, 3, 5.0))
pad19 = body26.newObject("PartDesign::Pad", "Pad018")
pad19.Profile = sketch19
pad19.Length = 10
body27 = doc.addObject("PartDesign::Body", "Body026")

# Sketch on XY plane
sketch20 = body27.newObject("Sketcher::SketchObject", "Sketch019")
sketch20.AttachmentSupport = (doc.getObject("XY_Plane026"), [""])
sketch20.MapMode = "FlatFace"
sketch20.addGeometry(Part.LineSegment(V(0, 20, 0), V(0, 0, 0)), False)
sketch20.addGeometry(Part.LineSegment(V(0, 0, 0), V(30, 0, 0)), False)
sketch20.addGeometry(Part.LineSegment(V(30, 0, 0), V(30, 20, 0)), False)
sketch20.addGeometry(Part.LineSegment(V(30, 20, 0), V(0, 20, 0)), False)
sketch20.addConstraint(Sketcher.Constraint("Coincident", 0, 2, 1, 1))
sketch20.addConstraint(Sketcher.Constraint("Coincident", 1, 2, 2, 1))
sketch20.addConstraint(Sketcher.Constraint("Coincident", 2, 2, 3, 1))
sketch20.addConstraint(Sketcher.Constraint("Coincident", 3, 2, 0, 1))
sketch20.addConstraint(Sketcher.Constraint("Vertical", 0))
sketch20.addConstraint(Sketcher.Constraint("Horizontal", 1))
sketch20.addConstraint(Sketcher.Constraint("Vertical", 2))
sketch20.addConstraint(Sketcher.Constraint("Horizontal", 3))
sketch20.addConstraint(Sketcher.Constraint("Coincident", 0, 2, -1, 1))
sketch20.addConstraint(Sketcher.Constraint("DistanceX", 1, 1, 1, 2, 30.0))
sketch20.addConstraint(Sketcher.Constraint("DistanceY", 0, 2, 0, 1, 20.0))
pad20 = body27.newObject("PartDesign::Pad", "Pad019")
pad20.Profile = sketch20
pad20.Length = 1.6
doc.recompute()

fillet7 = body27.newObject("PartDesign::Fillet", "Fillet006")
fillet7.Base = (pad20, edges_at(pad20, [(0, 0, 0.8), (0, 20, 0.8), (30, 20, 0.8)]))
fillet7.Radius = 0.5
doc.recompute()

fillet8 = body27.newObject("PartDesign::Fillet", "Fillet007")
fillet8.Base = (fillet7, edges_at(fillet7, [(30, 0, 0.8)]))
fillet8.Radius = 0.5
body28 = doc.addObject("PartDesign::Body", "Body027")
doc.recompute()

body27.Placement = App.Placement(V(-15, -10, 0), App.Rotation(V(0, 0, 1), 0))
boolean20 = body28.newObject("PartDesign::Boolean", "Boolean019")
boolean20.Type = "Fuse"
boolean20.addObjects([body27])
doc.recompute()

boolean21 = body28.newObject("PartDesign::Boolean", "Boolean020")
boolean21.Type = "Cut"
boolean21.addObjects([body26])
doc.recompute()

boolean22 = body28.newObject("PartDesign::Boolean", "Boolean021")
boolean22.Type = "Cut"
boolean22.addObjects([body25])
doc.recompute()

boolean23 = body28.newObject("PartDesign::Boolean", "Boolean022")
boolean23.Type = "Cut"
boolean23.addObjects([body24])
doc.recompute()

boolean24 = body28.newObject("PartDesign::Boolean", "Boolean023")
boolean24.Type = "Fuse"
boolean24.addObjects([body5])
doc.recompute()

boolean25 = body28.newObject("PartDesign::Boolean", "Boolean024")
boolean25.Type = "Fuse"
boolean25.addObjects([body10])
doc.recompute()

boolean26 = body28.newObject("PartDesign::Boolean", "Boolean025")
boolean26.Type = "Fuse"
boolean26.addObjects([body15])
doc.recompute()

boolean27 = body28.newObject("PartDesign::Boolean", "Boolean026")
boolean27.Type = "Fuse"
boolean27.addObjects([body23])
body29 = doc.addObject("PartDesign::Body", "Body028")
doc.recompute()

body28.Placement = App.Placement(V(0, 1, -0.6), App.Rotation(V(1, 0, 0), 90))
boolean28 = body29.newObject("PartDesign::Boolean", "Boolean027")
boolean28.Type = "Fuse"
boolean28.addObjects([body28])

doc.recompute()
